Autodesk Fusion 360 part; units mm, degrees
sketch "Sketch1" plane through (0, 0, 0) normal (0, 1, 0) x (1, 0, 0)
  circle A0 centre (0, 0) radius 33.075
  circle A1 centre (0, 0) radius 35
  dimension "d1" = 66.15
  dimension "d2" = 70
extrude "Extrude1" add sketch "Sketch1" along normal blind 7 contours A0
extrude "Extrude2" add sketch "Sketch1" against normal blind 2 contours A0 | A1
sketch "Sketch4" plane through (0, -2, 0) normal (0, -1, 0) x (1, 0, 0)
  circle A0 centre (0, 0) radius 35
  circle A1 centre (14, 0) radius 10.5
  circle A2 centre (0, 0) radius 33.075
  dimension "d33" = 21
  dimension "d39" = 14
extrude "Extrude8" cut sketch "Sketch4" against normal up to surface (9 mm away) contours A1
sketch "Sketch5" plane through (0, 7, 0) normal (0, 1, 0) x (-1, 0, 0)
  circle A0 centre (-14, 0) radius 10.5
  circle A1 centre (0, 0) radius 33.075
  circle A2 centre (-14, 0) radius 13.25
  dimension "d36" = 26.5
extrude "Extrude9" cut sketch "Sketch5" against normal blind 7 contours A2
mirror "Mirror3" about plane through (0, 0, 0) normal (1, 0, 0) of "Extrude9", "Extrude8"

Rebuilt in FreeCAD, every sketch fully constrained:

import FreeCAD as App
import Part
import Sketcher

V = App.Vector
Q = App.Units.Quantity

doc = App.newDocument("Part")
body = doc.addObject("PartDesign::Body", "Body")

# Sketch on XZ plane
sketch1 = body.newObject("Sketcher::SketchObject", "Sketch")
sketch1.AttachmentSupport = (doc.getObject("XZ_Plane"), [""])
sketch1.MapMode = "FlatFace"
sketch1.addGeometry(Part.Circle(V(0, 0, 0), V(0, 0, 1), 33), False)
sketch1.addConstraint([
    Sketcher.Constraint("Coincident", 0, 3, -1, 1),
    Sketcher.Constraint("Diameter", 0, Q("66.15 mm")),
])
pad1 = body.newObject("PartDesign::Pad", "Pad")
pad1.Profile = sketch1
pad1.Length = 7
pad1.Reversed = True

# Sketch on XZ plane
sketch2 = body.newObject("Sketcher::SketchObject", "Sketch001")
sketch2.AttachmentSupport = (doc.getObject("XZ_Plane"), [""])
sketch2.MapMode = "FlatFace"
sketch2.addGeometry(Part.Circle(V(0, 0, 0), V(0, 0, 1), 35), False)
sketch2.addConstraint([
    Sketcher.Constraint("Coincident", 0, 3, -1, 1),
    Sketcher.Constraint("Diameter", 0, Q("70 mm")),
])
pad2 = body.newObject("PartDesign::Pad", "Pad001")
pad2.Profile = sketch2
pad2.Length = 2

# Sketch on XZ plane
sketch3 = body.newObject("Sketcher::SketchObject", "Sketch002")
sketch3.AttachmentSupport = (doc.getObject("XZ_Plane"), [""])
sketch3.MapMode = "FlatFace"
sketch3.AttachmentOffset = App.Placement(V(0, 0, 2), App.Rotation())
sketch3.addGeometry(Part.Circle(V(14, 0, 0), V(0, 0, 1), 10), False)
sketch3.addConstraint([
    Sketcher.Constraint("PointOnObject", 0, 3, -1),
    Sketcher.Constraint("Diameter", 0, Q("21 mm")),
    Sketcher.Constraint("DistanceX", -1, 1, 0, 3, Q("14 mm")),
])
pocket1 = body.newObject("PartDesign::Pocket", "Pocket")
pocket1.Profile = sketch3
pocket1.Length = 9

# Sketch on XZ plane
sketch4 = body.newObject("Sketcher::SketchObject", "Sketch003")
sketch4.AttachmentSupport = (doc.getObject("XZ_Plane"), [""])
sketch4.MapMode = "FlatFace"
sketch4.AttachmentOffset = App.Placement(V(0, 0, -7), App.Rotation())
sketch4.addGeometry([
    Part.Circle(V(14, 0, 0), V(0, 0, 1), 13),
    Part.Circle(V(14, 0, 0), V(0, 0, 1), 10),
], False)
sketch4.addConstraint([
    Sketcher.Constraint("Coincident", 1, 3, 0, 3),
    Sketcher.Constraint("PointOnObject", 0, 3, -1),
    Sketcher.Constraint("Diameter", 0, Q("26.5 mm")),
    Sketcher.Constraint("Diameter", 1, Q("21 mm")),
    Sketcher.Constraint("DistanceX", -1, 1, 0, 3, Q("14 mm")),
])
pocket2 = body.newObject("PartDesign::Pocket", "Pocket001")
pocket2.Profile = sketch4
pocket2.Length = 7
pocket2.Reversed = True
doc.recompute()

mirrored = body.newObject("PartDesign::Mirrored", "Mirrored")
mirrored.Originals = [pocket2, pocket1]
mirrored.MirrorPlane = (doc.getObject("YZ_Plane"), [""])
body.Tip = mirrored

doc.recompute()
